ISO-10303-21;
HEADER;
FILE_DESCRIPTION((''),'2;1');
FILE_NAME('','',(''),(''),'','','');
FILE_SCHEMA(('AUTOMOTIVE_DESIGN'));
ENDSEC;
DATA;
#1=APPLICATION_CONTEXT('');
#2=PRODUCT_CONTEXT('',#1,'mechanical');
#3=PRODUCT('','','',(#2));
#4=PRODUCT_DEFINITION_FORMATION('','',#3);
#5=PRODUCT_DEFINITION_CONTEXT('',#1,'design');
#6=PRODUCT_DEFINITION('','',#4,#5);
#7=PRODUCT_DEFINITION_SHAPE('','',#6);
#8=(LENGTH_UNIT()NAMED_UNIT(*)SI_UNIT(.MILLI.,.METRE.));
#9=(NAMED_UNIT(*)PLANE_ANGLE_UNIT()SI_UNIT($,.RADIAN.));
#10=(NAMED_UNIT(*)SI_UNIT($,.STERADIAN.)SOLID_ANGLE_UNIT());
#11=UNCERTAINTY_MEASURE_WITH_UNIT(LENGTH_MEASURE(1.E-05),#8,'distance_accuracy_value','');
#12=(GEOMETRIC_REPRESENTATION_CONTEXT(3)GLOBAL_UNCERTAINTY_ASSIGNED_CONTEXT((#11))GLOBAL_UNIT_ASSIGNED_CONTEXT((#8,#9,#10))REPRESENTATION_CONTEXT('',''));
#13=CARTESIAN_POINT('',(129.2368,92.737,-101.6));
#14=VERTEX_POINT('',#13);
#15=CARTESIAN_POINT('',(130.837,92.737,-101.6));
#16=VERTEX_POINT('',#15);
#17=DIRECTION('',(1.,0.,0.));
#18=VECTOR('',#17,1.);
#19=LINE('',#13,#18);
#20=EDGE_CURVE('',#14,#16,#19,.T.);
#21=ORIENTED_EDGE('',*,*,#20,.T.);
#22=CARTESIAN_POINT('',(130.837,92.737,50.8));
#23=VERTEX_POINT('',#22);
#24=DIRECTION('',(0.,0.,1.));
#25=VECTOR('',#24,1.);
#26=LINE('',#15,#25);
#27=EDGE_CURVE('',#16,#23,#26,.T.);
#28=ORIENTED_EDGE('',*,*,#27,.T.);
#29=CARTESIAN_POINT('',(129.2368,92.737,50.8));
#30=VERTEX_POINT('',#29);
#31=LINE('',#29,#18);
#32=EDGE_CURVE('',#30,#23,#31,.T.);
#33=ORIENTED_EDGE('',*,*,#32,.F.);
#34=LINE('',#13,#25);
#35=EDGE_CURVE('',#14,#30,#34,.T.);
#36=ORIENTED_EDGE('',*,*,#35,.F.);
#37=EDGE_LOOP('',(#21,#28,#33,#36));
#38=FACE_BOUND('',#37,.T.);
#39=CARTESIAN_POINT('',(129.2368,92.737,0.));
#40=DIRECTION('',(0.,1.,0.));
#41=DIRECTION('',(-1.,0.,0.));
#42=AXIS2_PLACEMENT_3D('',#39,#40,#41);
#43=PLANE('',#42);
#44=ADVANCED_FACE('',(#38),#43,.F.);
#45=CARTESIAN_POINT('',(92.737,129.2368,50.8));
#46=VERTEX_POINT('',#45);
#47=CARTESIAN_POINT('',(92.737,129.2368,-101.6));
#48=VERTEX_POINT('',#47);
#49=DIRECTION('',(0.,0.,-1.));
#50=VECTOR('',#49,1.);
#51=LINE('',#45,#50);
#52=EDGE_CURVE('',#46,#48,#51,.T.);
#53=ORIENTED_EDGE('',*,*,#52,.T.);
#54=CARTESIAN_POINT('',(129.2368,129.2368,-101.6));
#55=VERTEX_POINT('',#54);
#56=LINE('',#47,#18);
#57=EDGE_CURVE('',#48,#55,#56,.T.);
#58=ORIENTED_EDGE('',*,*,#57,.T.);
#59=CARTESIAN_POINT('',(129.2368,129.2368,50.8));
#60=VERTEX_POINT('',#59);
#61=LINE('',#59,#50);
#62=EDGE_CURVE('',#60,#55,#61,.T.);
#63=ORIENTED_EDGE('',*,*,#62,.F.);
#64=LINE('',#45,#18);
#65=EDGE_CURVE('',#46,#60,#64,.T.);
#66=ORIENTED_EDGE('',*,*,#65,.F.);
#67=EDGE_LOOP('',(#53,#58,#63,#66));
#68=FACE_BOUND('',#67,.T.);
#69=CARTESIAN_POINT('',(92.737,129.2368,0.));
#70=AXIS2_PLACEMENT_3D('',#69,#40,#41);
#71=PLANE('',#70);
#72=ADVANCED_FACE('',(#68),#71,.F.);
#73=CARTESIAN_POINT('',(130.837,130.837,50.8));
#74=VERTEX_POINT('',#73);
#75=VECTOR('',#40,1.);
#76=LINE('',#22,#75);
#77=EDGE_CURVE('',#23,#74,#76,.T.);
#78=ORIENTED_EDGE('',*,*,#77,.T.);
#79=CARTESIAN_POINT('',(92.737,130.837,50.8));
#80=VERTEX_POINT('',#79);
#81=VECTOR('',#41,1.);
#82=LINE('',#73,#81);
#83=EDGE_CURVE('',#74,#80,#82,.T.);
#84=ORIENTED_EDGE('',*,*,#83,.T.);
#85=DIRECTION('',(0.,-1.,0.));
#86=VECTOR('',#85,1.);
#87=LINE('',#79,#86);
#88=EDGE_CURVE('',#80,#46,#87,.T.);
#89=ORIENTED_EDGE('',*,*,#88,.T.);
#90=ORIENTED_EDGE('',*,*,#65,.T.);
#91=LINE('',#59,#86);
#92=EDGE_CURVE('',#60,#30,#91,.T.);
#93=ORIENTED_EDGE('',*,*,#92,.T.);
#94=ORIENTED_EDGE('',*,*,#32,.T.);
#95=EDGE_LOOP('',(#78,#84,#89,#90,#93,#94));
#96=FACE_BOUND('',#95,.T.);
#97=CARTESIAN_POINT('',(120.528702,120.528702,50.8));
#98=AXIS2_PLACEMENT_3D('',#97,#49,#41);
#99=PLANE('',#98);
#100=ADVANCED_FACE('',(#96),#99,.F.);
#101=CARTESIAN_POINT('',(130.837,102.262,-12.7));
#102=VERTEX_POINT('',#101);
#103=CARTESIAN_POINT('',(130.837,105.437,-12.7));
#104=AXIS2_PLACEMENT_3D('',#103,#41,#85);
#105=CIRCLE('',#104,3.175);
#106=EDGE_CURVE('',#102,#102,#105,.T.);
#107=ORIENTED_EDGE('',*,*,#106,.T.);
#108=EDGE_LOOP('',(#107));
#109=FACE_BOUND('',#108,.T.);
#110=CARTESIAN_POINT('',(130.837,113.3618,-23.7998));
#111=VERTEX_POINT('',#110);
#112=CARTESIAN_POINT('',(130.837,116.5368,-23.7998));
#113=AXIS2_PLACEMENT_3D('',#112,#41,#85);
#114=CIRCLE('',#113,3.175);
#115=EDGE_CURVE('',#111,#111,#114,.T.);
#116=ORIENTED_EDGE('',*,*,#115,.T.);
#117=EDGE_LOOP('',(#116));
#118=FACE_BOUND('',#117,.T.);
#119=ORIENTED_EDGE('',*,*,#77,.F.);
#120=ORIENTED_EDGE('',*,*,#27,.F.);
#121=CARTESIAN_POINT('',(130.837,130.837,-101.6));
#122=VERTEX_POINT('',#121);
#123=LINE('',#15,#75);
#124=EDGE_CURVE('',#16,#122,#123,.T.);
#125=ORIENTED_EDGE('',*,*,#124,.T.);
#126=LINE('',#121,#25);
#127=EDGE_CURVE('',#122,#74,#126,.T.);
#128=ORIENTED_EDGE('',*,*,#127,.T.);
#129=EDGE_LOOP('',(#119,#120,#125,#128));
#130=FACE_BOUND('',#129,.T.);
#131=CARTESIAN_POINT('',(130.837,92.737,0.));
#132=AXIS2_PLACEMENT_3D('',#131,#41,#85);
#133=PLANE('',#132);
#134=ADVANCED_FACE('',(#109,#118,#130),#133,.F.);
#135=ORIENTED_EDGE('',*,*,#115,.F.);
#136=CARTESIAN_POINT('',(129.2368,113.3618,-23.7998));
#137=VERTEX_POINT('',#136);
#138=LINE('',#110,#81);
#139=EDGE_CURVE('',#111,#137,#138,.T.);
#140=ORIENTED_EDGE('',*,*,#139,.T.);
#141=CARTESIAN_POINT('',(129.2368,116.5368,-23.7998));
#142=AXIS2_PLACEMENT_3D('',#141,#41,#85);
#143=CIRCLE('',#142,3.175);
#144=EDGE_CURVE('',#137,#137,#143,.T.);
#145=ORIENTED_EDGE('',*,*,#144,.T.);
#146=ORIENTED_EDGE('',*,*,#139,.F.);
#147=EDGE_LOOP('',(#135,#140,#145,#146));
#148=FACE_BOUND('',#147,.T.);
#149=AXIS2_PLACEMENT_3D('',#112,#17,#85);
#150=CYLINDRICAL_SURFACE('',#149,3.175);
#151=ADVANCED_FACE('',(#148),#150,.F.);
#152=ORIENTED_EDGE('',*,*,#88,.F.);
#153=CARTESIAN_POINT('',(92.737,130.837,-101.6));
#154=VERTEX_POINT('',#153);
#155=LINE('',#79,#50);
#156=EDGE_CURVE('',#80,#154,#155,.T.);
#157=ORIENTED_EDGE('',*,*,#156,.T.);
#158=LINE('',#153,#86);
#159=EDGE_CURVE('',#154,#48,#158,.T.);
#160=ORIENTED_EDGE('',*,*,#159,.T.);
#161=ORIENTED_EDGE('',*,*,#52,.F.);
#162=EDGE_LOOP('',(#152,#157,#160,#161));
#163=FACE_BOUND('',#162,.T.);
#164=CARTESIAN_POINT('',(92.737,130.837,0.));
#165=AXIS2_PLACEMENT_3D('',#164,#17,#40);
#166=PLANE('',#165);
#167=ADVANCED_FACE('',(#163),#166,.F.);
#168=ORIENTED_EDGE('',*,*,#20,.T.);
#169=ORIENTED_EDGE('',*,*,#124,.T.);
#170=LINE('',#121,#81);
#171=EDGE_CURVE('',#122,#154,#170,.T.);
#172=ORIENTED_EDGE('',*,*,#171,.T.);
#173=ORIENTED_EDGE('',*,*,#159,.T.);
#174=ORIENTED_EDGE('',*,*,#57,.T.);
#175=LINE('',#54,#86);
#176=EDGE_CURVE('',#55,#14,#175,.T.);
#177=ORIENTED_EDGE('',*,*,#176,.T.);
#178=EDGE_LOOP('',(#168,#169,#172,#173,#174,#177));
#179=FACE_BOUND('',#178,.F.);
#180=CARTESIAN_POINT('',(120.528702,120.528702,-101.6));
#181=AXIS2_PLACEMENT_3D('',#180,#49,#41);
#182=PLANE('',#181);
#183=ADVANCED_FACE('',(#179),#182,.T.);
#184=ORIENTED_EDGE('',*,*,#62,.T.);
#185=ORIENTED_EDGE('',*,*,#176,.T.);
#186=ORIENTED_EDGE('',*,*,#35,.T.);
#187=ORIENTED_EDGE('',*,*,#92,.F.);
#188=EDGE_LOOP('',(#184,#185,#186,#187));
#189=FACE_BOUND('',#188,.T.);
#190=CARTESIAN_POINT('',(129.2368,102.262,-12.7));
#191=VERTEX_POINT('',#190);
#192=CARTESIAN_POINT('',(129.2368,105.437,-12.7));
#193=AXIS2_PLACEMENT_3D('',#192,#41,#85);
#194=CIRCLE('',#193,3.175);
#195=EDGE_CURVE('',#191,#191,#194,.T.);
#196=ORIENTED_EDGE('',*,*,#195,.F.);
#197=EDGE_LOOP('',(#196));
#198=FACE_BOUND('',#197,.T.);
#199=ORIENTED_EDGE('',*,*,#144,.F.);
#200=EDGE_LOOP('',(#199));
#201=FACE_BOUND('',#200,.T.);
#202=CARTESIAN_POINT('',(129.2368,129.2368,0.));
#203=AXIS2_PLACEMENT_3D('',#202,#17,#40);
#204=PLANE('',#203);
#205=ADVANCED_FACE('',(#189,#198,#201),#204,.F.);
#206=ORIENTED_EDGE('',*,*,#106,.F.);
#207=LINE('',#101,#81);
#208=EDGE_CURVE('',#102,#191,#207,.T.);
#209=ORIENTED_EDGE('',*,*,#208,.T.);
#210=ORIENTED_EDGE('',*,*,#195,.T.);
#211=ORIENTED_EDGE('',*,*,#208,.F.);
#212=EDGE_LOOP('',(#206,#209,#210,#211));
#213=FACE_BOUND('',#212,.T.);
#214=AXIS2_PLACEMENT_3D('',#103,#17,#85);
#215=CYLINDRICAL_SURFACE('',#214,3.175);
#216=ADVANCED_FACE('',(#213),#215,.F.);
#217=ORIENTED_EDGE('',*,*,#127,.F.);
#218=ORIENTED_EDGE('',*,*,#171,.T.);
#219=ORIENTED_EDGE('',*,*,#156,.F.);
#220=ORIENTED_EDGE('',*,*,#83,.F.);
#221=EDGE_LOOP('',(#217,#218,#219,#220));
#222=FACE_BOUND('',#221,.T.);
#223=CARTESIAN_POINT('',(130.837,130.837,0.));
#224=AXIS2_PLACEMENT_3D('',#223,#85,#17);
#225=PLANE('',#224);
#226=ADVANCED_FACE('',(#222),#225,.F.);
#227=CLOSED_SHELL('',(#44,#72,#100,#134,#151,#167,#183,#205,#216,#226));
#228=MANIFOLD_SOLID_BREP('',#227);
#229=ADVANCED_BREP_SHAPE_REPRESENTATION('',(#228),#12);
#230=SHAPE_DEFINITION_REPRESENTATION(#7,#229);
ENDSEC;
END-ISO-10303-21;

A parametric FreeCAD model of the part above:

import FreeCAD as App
import Part
import Sketcher
Q = App.Units.Quantity

doc = App.newDocument("Part")
body = doc.addObject("PartDesign::Body", "Body")

# Sketch on XY plane
sketch1 = body.newObject("Sketcher::SketchObject", "Sketch")
sketch1.AttachmentSupport = (doc.getObject("XY_Plane"), [""])
sketch1.MapMode = "FlatFace"
sketch1.addGeometry(Part.LineSegment(App.Vector(38.1, 0, 0), App.Vector(0, 0, 0)), False)
sketch1.addGeometry(Part.LineSegment(App.Vector(0, 0, 0), App.Vector(0, -38.1, 0)), False)
sketch1.addGeometry(Part.LineSegment(App.Vector(0, -38.1, 0), App.Vector(1.6, -38.1, 0)), False)
sketch1.addGeometry(Part.LineSegment(App.Vector(1.6, -38.1, 0), App.Vector(1.6, -1.6, 0)), False)
sketch1.addGeometry(Part.LineSegment(App.Vector(1.6, -1.6, 0), App.Vector(38.1, -1.6, 0)), False)
sketch1.addGeometry(Part.LineSegment(App.Vector(38.1, -1.6, 0), App.Vector(38.1, 0, 0)), False)
sketch1.addConstraint(Sketcher.Constraint("Coincident", 0, 2, 1, 1))
sketch1.addConstraint(Sketcher.Constraint("Coincident", 1, 2, 2, 1))
sketch1.addConstraint(Sketcher.Constraint("Coincident", 2, 2, 3, 1))
sketch1.addConstraint(Sketcher.Constraint("Coincident", 3, 2, 4, 1))
sketch1.addConstraint(Sketcher.Constraint("Coincident", 4, 2, 5, 1))
sketch1.addConstraint(Sketcher.Constraint("Coincident", 5, 2, 0, 1))
sketch1.addConstraint(Sketcher.Constraint("Horizontal", 0))
sketch1.addConstraint(Sketcher.Constraint("Vertical", 1))
sketch1.addConstraint(Sketcher.Constraint("Horizontal", 2))
sketch1.addConstraint(Sketcher.Constraint("Vertical", 3))
sketch1.addConstraint(Sketcher.Constraint("Horizontal", 4))
sketch1.addConstraint(Sketcher.Constraint("Vertical", 5))
sketch1.addConstraint(Sketcher.Constraint("Coincident", 0, 2, -1, 1))
sketch1.addConstraint(Sketcher.Constraint("Equal", 0, 1))
sketch1.addConstraint(Sketcher.Constraint("Equal", 4, 3))
sketch1.addConstraint(Sketcher.Constraint("DistanceX", 0, 2, 0, 1, Q("1.5 in")))
sketch1.addConstraint(Sketcher.Constraint("DistanceX", 2, 1, 2, 2, Q("0.063 in")))
pad1 = body.newObject("PartDesign::Pad", "Pad")
pad1.Profile = sketch1
pad1.Type = "TwoLengths"
pad1.Length = Q("2 in")
pad1.Length2 = Q("4 in")

# Sketch on YZ plane
sketch2 = body.newObject("Sketcher::SketchObject", "Sketch001")
sketch2.AttachmentSupport = (doc.getObject("YZ_Plane"), [""])
sketch2.MapMode = "FlatFace"
sketch2.addGeometry(Part.Circle(App.Vector(-25.4, -12.7, 0), App.Vector(0, 0, 1), 3.2), False)
sketch2.addGeometry(Part.Circle(App.Vector(-14.3, -23.8, 0), App.Vector(0, 0, 1), 3.2), False)
sketch2.addConstraint(Sketcher.Constraint("Equal", 0, 1))
sketch2.addConstraint(Sketcher.Constraint("Diameter", 0, Q("0.25 in")))
sketch2.addConstraint(Sketcher.Constraint("DistanceX", 0, 3, -1, 1, Q("1 in")))
sketch2.addConstraint(Sketcher.Constraint("DistanceY", 0, 3, -1, 1, Q("0.5 in")))
sketch2.addConstraint(Sketcher.Constraint("DistanceX", 1, 3, -1, 1, Q("0.563 in")))
sketch2.addConstraint(Sketcher.Constraint("DistanceY", 1, 3, -1, 1, Q("0.937 in")))
pocket1 = body.newObject("PartDesign::Pocket", "Pocket")
pocket1.Profile = sketch2
pocket1.Length = Q("0.063 in")
pocket1.Reversed = True
body2 = doc.addObject("PartDesign::Body", "Body001")
doc.recompute()

body.Placement = App.Placement(App.Vector(-130.837, 130.837, 0), App.Rotation(App.Vector(0, 0, 1), 0))
boolean = body2.newObject("PartDesign::Boolean", "Boolean")
boolean.Type = "Fuse"
boolean.addObjects([body])
body3 = doc.addObject("PartDesign::Body", "Body002")
doc.recompute()

mirroring = doc.addObject("Part::Mirroring", "Mirroring")
mirroring.Source = body2
mirroring.Base = App.Vector(0, 0, 0)
mirroring.Normal = App.Vector(0, 1, 0)
body3.BaseFeature = mirroring
doc.recompute()
body4 = doc.addObject("PartDesign::Body", "Body003")
doc.recompute()

mirroring2 = doc.addObject("Part::Mirroring", "Mirroring001")
mirroring2.Source = body3
mirroring2.Base = App.Vector(0, 0, 0)
mirroring2.Normal = App.Vector(1, 0, 0)
body4.BaseFeature = mirroring2
doc.recompute()
body5 = doc.addObject("PartDesign::Body", "Body004")
doc.recompute()

mirroring3 = doc.addObject("Part::Mirroring", "Mirroring002")
mirroring3.Source = body4
mirroring3.Base = App.Vector(0, 0, 0)
mirroring3.Normal = App.Vector(0, 1, 0)
body5.BaseFeature = mirroring3
doc.recompute()
body2.Visibility = False
body3.Visibility = False
body4.Visibility = False
mirroring.Visibility = False
mirroring2.Visibility = False
mirroring3.Visibility = False

doc.recompute()
